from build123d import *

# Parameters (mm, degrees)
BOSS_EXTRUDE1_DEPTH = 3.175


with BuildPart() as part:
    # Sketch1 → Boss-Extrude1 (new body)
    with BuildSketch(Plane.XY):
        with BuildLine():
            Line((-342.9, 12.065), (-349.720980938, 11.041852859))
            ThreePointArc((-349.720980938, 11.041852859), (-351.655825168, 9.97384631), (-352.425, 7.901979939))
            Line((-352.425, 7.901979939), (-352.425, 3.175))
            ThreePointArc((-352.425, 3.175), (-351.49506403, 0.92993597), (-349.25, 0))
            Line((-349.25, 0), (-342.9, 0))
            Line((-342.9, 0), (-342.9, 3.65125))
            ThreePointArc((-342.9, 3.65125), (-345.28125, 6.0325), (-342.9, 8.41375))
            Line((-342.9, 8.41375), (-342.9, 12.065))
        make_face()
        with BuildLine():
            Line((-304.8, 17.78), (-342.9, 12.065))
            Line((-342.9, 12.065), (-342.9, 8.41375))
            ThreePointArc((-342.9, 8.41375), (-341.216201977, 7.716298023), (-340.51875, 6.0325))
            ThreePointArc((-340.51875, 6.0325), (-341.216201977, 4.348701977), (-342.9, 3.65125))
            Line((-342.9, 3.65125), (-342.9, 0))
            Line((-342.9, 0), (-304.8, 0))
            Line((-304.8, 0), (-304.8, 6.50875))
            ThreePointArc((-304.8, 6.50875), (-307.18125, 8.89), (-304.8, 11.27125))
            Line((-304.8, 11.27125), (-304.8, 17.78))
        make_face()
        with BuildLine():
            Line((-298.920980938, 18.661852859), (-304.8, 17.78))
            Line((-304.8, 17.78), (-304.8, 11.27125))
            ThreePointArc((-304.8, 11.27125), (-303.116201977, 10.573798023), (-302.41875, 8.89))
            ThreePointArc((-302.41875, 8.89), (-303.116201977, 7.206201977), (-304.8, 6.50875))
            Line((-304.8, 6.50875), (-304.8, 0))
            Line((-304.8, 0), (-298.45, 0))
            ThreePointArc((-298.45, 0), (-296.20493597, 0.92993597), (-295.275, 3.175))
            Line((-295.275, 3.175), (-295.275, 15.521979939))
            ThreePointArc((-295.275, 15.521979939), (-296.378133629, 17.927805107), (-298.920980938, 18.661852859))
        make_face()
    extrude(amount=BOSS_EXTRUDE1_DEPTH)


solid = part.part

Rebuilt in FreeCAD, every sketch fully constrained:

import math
import FreeCAD as App
import Part
import Sketcher
from FreeCAD import Vector
Q = App.Units.Quantity

doc = App.newDocument("Part")
body = doc.addObject("PartDesign::Body", "Body")

sketch1 = body.newObject("Sketcher::SketchObject", "Sketch")
sketch1.AttachmentSupport = (doc.getObject("XY_Plane"), [""])
sketch1.MapMode = "FlatFace"
sketch1.addGeometry([
    Part.LineSegment(Vector(-342.9, 12.1, 0), Vector(-349.7, 11, 0)),
    Part.ArcOfCircle(Part.Circle(Vector(-349.2, 7.9, 0), Vector(0, 0, 1), 3.2), math.radians(99), math.radians(180)),
    Part.LineSegment(Vector(-352.4, 7.9, 0), Vector(-352.4, 3.2, 0)),
    Part.ArcOfCircle(Part.Circle(Vector(-349.2, 3.2, 0), Vector(0, 0, 1), 3.2), math.radians(-180), math.radians(-90)),
    Part.LineSegment(Vector(-349.2, 0, 0), Vector(-298.4, 0, 0)),
    Part.ArcOfCircle(Part.Circle(Vector(-298.5, 3.2, 0), Vector(0, 0, 1), 3.2), math.radians(-90), math.radians(0)),
    Part.LineSegment(Vector(-295.3, 3.2, 0), Vector(-295.3, 15.5, 0)),
    Part.ArcOfCircle(Part.Circle(Vector(-298.4, 15.5, 0), Vector(0, 0, 1), 3.2), math.radians(0), math.radians(99)),
    Part.LineSegment(Vector(-298.9, 18.7, 0), Vector(-304.8, 17.8, 0)),
    Part.LineSegment(Vector(-304.8, 17.8, 0), Vector(-342.9, 12.1, 0)),
    Part.ArcOfCircle(Part.Circle(Vector(-304.8, 8.9, 0), Vector(0, 0, 1), 2.4), math.radians(90), math.radians(270)),
    Part.ArcOfCircle(Part.Circle(Vector(-304.8, 8.9, 0), Vector(0, 0, 1), 2.4), math.radians(0), math.radians(90)),
    Part.ArcOfCircle(Part.Circle(Vector(-304.8, 8.9, 0), Vector(0, 0, 1), 2.4), math.radians(-90), math.radians(0)),
    Part.ArcOfCircle(Part.Circle(Vector(-342.9, 6, 0), Vector(0, 0, 1), 2.4), math.radians(90), math.radians(270)),
    Part.ArcOfCircle(Part.Circle(Vector(-342.9, 6, 0), Vector(0, 0, 1), 2.4), math.radians(0), math.radians(90)),
    Part.ArcOfCircle(Part.Circle(Vector(-342.9, 6, 0), Vector(0, 0, 1), 2.4), math.radians(-90), math.radians(0)),
], False)
sketch1.addConstraint([
    Sketcher.Constraint("Tangent", 0, 2, 1, 1),
    Sketcher.Constraint("Tangent", 1, 2, 2, 1),
    Sketcher.Constraint("Tangent", 2, 2, 3, 1),
    Sketcher.Constraint("Tangent", 3, 2, 4, 1),
    Sketcher.Constraint("Tangent", 4, 2, 5, 1),
    Sketcher.Constraint("Tangent", 5, 2, 6, 1),
    Sketcher.Constraint("Tangent", 6, 2, 7, 1),
    Sketcher.Constraint("Tangent", 7, 2, 8, 1),
    Sketcher.Constraint("Coincident", 8, 2, 9, 1),
    Sketcher.Constraint("Coincident", 9, 2, 0, 1),
    Sketcher.Constraint("Tangent", 10, 1, 11, 2),
    Sketcher.Constraint("Tangent", 11, 1, 12, 2),
    Sketcher.Constraint("Tangent", 12, 1, 10, 2),
    Sketcher.Constraint("Tangent", 13, 1, 14, 2),
    Sketcher.Constraint("Tangent", 14, 1, 15, 2),
    Sketcher.Constraint("Tangent", 15, 1, 13, 2),
    Sketcher.Constraint("Vertical", 2),
    Sketcher.Constraint("Horizontal", 4),
    Sketcher.Constraint("Vertical", 6),
    Sketcher.Constraint("Equal", 1, 3),
    Sketcher.Constraint("Equal", 3, 5),
    Sketcher.Constraint("Equal", 5, 7),
    Sketcher.Constraint("Equal", 12, 13),
    Sketcher.Constraint("PointOnObject", 3, 2, -1),
    Sketcher.Constraint("Parallel", 0, 8),
    Sketcher.Constraint("Parallel", 8, 9),
    Sketcher.Constraint("Horizontal", 12, 3, 11, 1),
    Sketcher.Constraint("Horizontal", 15, 3, 14, 1),
    Sketcher.Constraint("Vertical", 12, 3, 8, 2),
    Sketcher.Constraint("Vertical", 15, 3, 9, 2),
    Sketcher.Constraint("Vertical", 8, 2, 10, 1),
    Sketcher.Constraint("Vertical", 10, 1, 12, 1),
    Sketcher.Constraint("Vertical", 9, 2, 13, 1),
    Sketcher.Constraint("Vertical", 13, 1, 15, 1),
    Sketcher.Constraint("DistanceX", 4, 1, 4, 2, Q("2 in")),
    Sketcher.Constraint("DistanceX", 10, 3, -1, 1, Q("12 in")),
    Sketcher.Constraint("Radius", 1, Q("0.125 in")),
    Sketcher.Constraint("Radius", 10, Q("0.09375 in")),
    Sketcher.Constraint("DistanceX", 13, 3, -1, 1, Q("13.5 in")),
    Sketcher.Constraint("DistanceY", -1, 1, 8, 2, Q("0.7 in")),
    Sketcher.Constraint("DistanceY", 1, 3, 7, 3, Q("0.3 in")),
    Sketcher.Constraint("DistanceX", 1, 3, -1, 1, Q("13.75 in")),
    Sketcher.Constraint("DistanceY", -1, 1, 10, 3, Q("0.35 in")),
    Sketcher.Constraint("DistanceY", -1, 1, 13, 3, Q("0.2375 in")),
])
pad1 = body.newObject("PartDesign::Pad", "Pad")
pad1.Profile = sketch1
pad1.Length = Q("0.125 in")

doc.recompute()
